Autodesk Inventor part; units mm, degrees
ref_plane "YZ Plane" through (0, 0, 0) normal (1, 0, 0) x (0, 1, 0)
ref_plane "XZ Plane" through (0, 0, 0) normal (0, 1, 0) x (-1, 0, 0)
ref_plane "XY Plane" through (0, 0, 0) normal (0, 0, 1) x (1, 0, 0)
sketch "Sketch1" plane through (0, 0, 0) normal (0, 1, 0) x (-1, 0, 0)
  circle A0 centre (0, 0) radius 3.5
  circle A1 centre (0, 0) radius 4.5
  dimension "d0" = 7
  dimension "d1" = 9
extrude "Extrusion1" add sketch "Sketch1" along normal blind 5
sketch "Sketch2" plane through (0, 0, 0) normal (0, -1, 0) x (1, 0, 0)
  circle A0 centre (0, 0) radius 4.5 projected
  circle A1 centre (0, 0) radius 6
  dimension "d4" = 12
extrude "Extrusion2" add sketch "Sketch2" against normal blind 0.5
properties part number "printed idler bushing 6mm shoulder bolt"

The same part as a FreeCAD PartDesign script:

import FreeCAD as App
import Part
import Sketcher

V = App.Vector
Q = App.Units.Quantity

doc = App.newDocument("Part")
params = doc.addObject("Spreadsheet::Sheet", "Params")
for row, (alias, value) in enumerate([
    ("sketch1_diameter", "9 mm"),
    ("sketch1_diameter2", "7 mm"),
    ("pad1_length", "5 mm"),
    ("sketch2_diameter", "12 mm"),
    ("sketch2_diameter2", "9 mm"),
    ("pad2_length", "0.5 mm"),
], start=1):
    params.set(f"A{row}", alias)
    params.set(f"B{row}", "=" + value)
    params.setAlias(f"B{row}", alias)

body = doc.addObject("PartDesign::Body", "Body")

# Sketch on XZ plane
sketch1 = doc.addObject("Sketcher::SketchObject", "Sketch")
body.addObject(sketch1)
sketch1.AttachmentSupport = (doc.XZ_Plane, [""])
sketch1.MapMode = "FlatFace"
sketch1.addGeometry([
    Part.Circle(V(0, 0, 0), V(0, 0, 1), 4.5),
    Part.Circle(V(0, 0, 0), V(0, 0, 1), 3.5),
], False)
sketch1.addConstraint([
    Sketcher.Constraint("Coincident", 0, 3, -1, 1),
    Sketcher.Constraint("Coincident", 1, 3, -1, 1),
    Sketcher.Constraint("Diameter", 0, Q("9 mm")),
    Sketcher.Constraint("Diameter", 1, Q("7 mm")),
])
sketch1.setExpression("Constraints[2]", "Params.sketch1_diameter")
sketch1.setExpression("Constraints[3]", "Params.sketch1_diameter2")
pad1 = doc.addObject("PartDesign::Pad", "Pad")
body.addObject(pad1)
pad1.Profile = sketch1
pad1.setExpression("Length", "Params.pad1_length")
pad1.Reversed = True

# Sketch on XZ plane
sketch2 = doc.addObject("Sketcher::SketchObject", "Sketch001")
body.addObject(sketch2)
sketch2.AttachmentSupport = (doc.XZ_Plane, [""])
sketch2.MapMode = "FlatFace"
sketch2.addGeometry([
    Part.Circle(V(0, 0, 0), V(0, 0, 1), 6),
    Part.Circle(V(0, 0, 0), V(0, 0, 1), 4.5),
], False)
sketch2.addConstraint([
    Sketcher.Constraint("Coincident", 0, 3, -1, 1),
    Sketcher.Constraint("Coincident", 1, 3, -1, 1),
    Sketcher.Constraint("Diameter", 0, Q("12 mm")),
    Sketcher.Constraint("Diameter", 1, Q("9 mm")),
])
sketch2.setExpression("Constraints[2]", "Params.sketch2_diameter")
sketch2.setExpression("Constraints[3]", "Params.sketch2_diameter2")
pad2 = doc.addObject("PartDesign::Pad", "Pad001")
body.addObject(pad2)
pad2.Profile = sketch2
pad2.setExpression("Length", "Params.pad2_length")
pad2.Reversed = True

doc.recompute()
